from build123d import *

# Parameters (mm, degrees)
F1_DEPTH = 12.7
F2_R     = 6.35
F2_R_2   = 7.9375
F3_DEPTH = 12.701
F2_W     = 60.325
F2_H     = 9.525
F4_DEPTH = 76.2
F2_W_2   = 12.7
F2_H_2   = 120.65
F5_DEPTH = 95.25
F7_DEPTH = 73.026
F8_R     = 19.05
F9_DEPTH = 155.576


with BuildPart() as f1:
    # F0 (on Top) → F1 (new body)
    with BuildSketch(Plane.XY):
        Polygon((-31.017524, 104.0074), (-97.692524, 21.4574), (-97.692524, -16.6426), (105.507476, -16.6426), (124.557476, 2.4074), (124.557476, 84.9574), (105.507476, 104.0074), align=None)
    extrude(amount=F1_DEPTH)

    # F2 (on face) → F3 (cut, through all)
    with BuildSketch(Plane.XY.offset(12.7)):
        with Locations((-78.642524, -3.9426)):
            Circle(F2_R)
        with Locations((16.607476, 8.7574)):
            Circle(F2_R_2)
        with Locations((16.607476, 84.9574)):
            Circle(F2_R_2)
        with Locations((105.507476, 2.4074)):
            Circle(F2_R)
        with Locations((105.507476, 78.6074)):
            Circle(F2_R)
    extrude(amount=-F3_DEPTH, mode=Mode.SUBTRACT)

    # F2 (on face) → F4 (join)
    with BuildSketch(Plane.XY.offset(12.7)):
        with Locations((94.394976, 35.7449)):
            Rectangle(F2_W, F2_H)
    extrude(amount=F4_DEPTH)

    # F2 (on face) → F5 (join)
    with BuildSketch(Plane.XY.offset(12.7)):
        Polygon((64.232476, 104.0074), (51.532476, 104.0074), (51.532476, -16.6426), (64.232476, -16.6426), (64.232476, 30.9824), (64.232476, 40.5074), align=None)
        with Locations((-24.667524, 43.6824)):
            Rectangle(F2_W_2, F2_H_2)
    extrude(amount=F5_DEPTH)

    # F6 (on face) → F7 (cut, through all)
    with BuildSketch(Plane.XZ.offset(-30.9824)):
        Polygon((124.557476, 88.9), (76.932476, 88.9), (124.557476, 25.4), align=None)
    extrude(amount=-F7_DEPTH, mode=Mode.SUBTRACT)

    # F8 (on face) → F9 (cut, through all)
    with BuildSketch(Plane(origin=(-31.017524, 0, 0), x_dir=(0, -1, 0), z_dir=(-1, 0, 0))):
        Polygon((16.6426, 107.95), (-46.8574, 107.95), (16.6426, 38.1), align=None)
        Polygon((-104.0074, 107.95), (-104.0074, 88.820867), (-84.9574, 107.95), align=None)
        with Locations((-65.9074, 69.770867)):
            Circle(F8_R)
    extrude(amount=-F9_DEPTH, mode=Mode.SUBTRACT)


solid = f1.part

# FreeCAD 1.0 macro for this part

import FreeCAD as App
import Part
import Sketcher
from FreeCAD import Vector
Q = App.Units.Quantity


def add_polygon(sketch, points):
    """Adds a closed chain of lines whose ends are joined by coincident constraints."""
    first, n = sketch.GeometryCount, len(points)
    for a, b in zip(points, points[1:] + points[:1]):
        sketch.addGeometry(Part.LineSegment(App.Vector(*a, 0), App.Vector(*b, 0)), False)
    for i in range(n):
        sketch.addConstraint(Sketcher.Constraint("Coincident", first + i, 2, first + (i + 1) % n, 1))

doc = App.newDocument("Part")
body = doc.addObject("PartDesign::Body", "Body")

sketch1 = body.newObject("Sketcher::SketchObject", "Sketch")
sketch1.AttachmentSupport = (doc.getObject("XY_Plane"), [""])
sketch1.MapMode = "FlatFace"
add_polygon(sketch1, [(-31, 104), (-98, 21), (-98, -17), (106, -17), (125, 2), (125, 85), (106, 104)])
sketch1.addConstraint([
    Sketcher.Constraint("Vertical", 1),
    Sketcher.Constraint("Horizontal", 2),
    Sketcher.Constraint("Vertical", 4),
    Sketcher.Constraint("Horizontal", 6),
    Sketcher.Constraint("Perpendicular", 3, 5),
    Sketcher.Constraint("Vertical", 2, 2, 5, 2),
    Sketcher.Constraint("Equal", 3, 5),
    Sketcher.Constraint("DistanceX", 2, 1, 2, 2, Q("8 in")),
    Sketcher.Constraint("DistanceY", 1, 2, 1, 1, Q("1.5 in")),
    Sketcher.Constraint("DistanceY", 2, 2, 4, 2, Q("4 in")),
    Sketcher.Constraint("DistanceY", 4, 1, 4, 2, Q("3.25 in")),
    Sketcher.Constraint("DistanceX", 6, 2, 6, 1, Q("5.375 in")),
    Sketcher.Constraint("DistanceY", -1, 1, 0, 2, 21.4574),
    Sketcher.Constraint("DistanceX", 0, 2, -1, 1, 97.692524),
])
pad1 = body.newObject("PartDesign::Pad", "Pad")
pad1.Profile = sketch1
pad1.Length = Q("0.5 in")

sketch2 = body.newObject("Sketcher::SketchObject", "Sketch001")
sketch2.AttachmentSupport = (doc.getObject("XY_Plane"), [""])
sketch2.MapMode = "FlatFace"
sketch2.AttachmentOffset = App.Placement(Vector(0, 0, 0.5 * 25.4), App.Rotation())
sketch2.addGeometry([
    Part.Circle(Vector(-79, -4, 0), Vector(0, 0, 1), 6),
    Part.Circle(Vector(17, 9, 0), Vector(0, 0, 1), 8),
    Part.Circle(Vector(17, 85, 0), Vector(0, 0, 1), 8),
    Part.Circle(Vector(106, 2, 0), Vector(0, 0, 1), 6),
    Part.Circle(Vector(106, 79, 0), Vector(0, 0, 1), 6),
], False)
sketch2.addConstraint([
    Sketcher.Constraint("Equal", 1, 2),
    Sketcher.Constraint("Equal", 0, 3),
    Sketcher.Constraint("Equal", 3, 4),
    Sketcher.Constraint("Vertical", 1, 3, 2, 3),
    Sketcher.Constraint("Vertical", 3, 3, 4, 3),
    Sketcher.Constraint("Diameter", 0, Q("0.5 in")),
    Sketcher.Constraint("Diameter", 1, Q("0.625 in")),
    Sketcher.Constraint("DistanceY", 1, 3, 2, 3, Q("3 in")),
    Sketcher.Constraint("DistanceY", 3, 3, 4, 3, Q("3 in")),
    Sketcher.Constraint("DistanceY", 0, 3, 1, 3, Q("0.5 in")),
    Sketcher.Constraint("DistanceX", 1, 3, 3, 3, Q("3.5 in")),
    Sketcher.Constraint("DistanceX", 0, 3, 1, 3, Q("3.75 in")),
    Sketcher.Constraint("DistanceY", 3, 3, 1, 3, Q("0.25 in")),
    Sketcher.Constraint("DistanceY", 0, 3, -1, 1, 3.9426),
    Sketcher.Constraint("DistanceX", 0, 3, -1, 1, 78.642524),
])
pocket1 = body.newObject("PartDesign::Pocket", "Pocket")
pocket1.Profile = sketch2
pocket1.Type = "ThroughAll"

sketch3 = body.newObject("Sketcher::SketchObject", "Sketch002")
sketch3.AttachmentSupport = (doc.getObject("XY_Plane"), [""])
sketch3.MapMode = "FlatFace"
sketch3.AttachmentOffset = App.Placement(Vector(0, 0, 0.5 * 25.4), App.Rotation())
add_polygon(sketch3, [(64, 41), (64, 31), (125, 31), (125, 41)])
sketch3.addConstraint([
    Sketcher.Constraint("Vertical", 0),
    Sketcher.Constraint("Horizontal", 1),
    Sketcher.Constraint("Vertical", 2),
    Sketcher.Constraint("Horizontal", 3),
    Sketcher.Constraint("DistanceX", 1, 1, 1, 2, Q("2.375 in")),
    Sketcher.Constraint("DistanceY", 0, 2, 0, 1, Q("0.375 in")),
    Sketcher.Constraint("DistanceY", -1, 1, 0, 2, 30.9824),
    Sketcher.Constraint("DistanceX", -1, 1, 0, 2, 64.232476),
])
pad2 = body.newObject("PartDesign::Pad", "Pad001")
pad2.Profile = sketch3
pad2.Length = Q("3 in")

sketch4 = body.newObject("Sketcher::SketchObject", "Sketch003")
sketch4.AttachmentSupport = (doc.getObject("XY_Plane"), [""])
sketch4.MapMode = "FlatFace"
sketch4.AttachmentOffset = App.Placement(Vector(0, 0, 0.5 * 25.4), App.Rotation())
add_polygon(sketch4, [(64, 104), (52, 104), (52, -17), (64, -17)])
add_polygon(sketch4, [(-31, 104), (-31, -17), (-18, -17), (-18, 104)])
sketch4.addConstraint([
    Sketcher.Constraint("Horizontal", 0),
    Sketcher.Constraint("Vertical", 1),
    Sketcher.Constraint("Horizontal", 2),
    Sketcher.Constraint("Vertical", 3),
    Sketcher.Constraint("Vertical", 4),
    Sketcher.Constraint("Horizontal", 5),
    Sketcher.Constraint("Vertical", 6),
    Sketcher.Constraint("Horizontal", 7),
    Sketcher.Constraint("Horizontal", 2, 2, 4, 2),
    Sketcher.Constraint("Horizontal", 3, 2, 6, 2),
    Sketcher.Constraint("Equal", 2, 5),
    Sketcher.Constraint("DistanceX", 0, 2, 0, 1, Q("0.5 in")),
    Sketcher.Constraint("DistanceY", 1, 2, 1, 1, Q("4.75 in")),
    Sketcher.Constraint("DistanceX", 4, 2, 1, 2, Q("3.25 in")),
    Sketcher.Constraint("DistanceY", -1, 1, 0, 2, 104.0074),
    Sketcher.Constraint("DistanceX", -1, 1, 0, 2, 51.532476),
])
pad3 = body.newObject("PartDesign::Pad", "Pad002")
pad3.Profile = sketch4
pad3.Length = Q("3.75 in")

sketch5 = body.newObject("Sketcher::SketchObject", "Sketch004")
sketch5.AttachmentSupport = (doc.getObject("XZ_Plane"), [""])
sketch5.MapMode = "FlatFace"
sketch5.AttachmentOffset = App.Placement(Vector(0, 0, -30.9824), App.Rotation())
add_polygon(sketch5, [(125, 89), (77, 89), (125, 25)])
sketch5.addConstraint([
    Sketcher.Constraint("Horizontal", 0),
    Sketcher.Constraint("Vertical", 2),
    Sketcher.Constraint("DistanceY", 2, 1, 2, 2, Q("2.5 in")),
    Sketcher.Constraint("DistanceY", -1, 1, 1, 2, Q("1 in")),
    Sketcher.Constraint("DistanceX", 0, 2, 0, 1, Q("1.875 in")),
    Sketcher.Constraint("DistanceX", -1, 1, 0, 2, 76.932476),
])
pocket2 = body.newObject("PartDesign::Pocket", "Pocket001")
pocket2.Profile = sketch5
pocket2.Type = "ThroughAll"

sketch6 = body.newObject("Sketcher::SketchObject", "Sketch005")
sketch6.AttachmentSupport = (doc.getObject("YZ_Plane"), [""])
sketch6.MapMode = "FlatFace"
sketch6.AttachmentOffset = App.Placement(Vector(0, 0, -31.017524), App.Rotation())
add_polygon(sketch6, [(-17, 108), (47, 108), (-17, 38)])
add_polygon(sketch6, [(104, 108), (104, 89), (85, 108)])
sketch6.addGeometry(Part.Circle(Vector(66, 70, 0), Vector(0, 0, 1), 19), False)
sketch6.addConstraint([
    Sketcher.Constraint("Horizontal", 0),
    Sketcher.Constraint("Vertical", 2),
    Sketcher.Constraint("Vertical", 3),
    Sketcher.Constraint("Horizontal", 5),
    Sketcher.Constraint("Horizontal", 2, 2, 4, 2),
    Sketcher.Constraint("Diameter", 6, Q("1.5 in")),
    Sketcher.Constraint("DistanceX", 0, 1, 0, 2, Q("2.5 in")),
    Sketcher.Constraint("DistanceX", 2, 2, 4, 2, Q("4 in")),
    Sketcher.Constraint("DistanceX", 5, 1, 5, 2, Q("0.75 in")),
    Sketcher.Constraint("DistanceY", 2, 1, 2, 2, Q("2.75 in")),
    Sketcher.Constraint("DistanceY", -1, 1, 1, 2, Q("1.5 in")),
    Sketcher.Constraint("DistanceX", 6, 3, 3, 2, Q("1.5 in")),
    Sketcher.Constraint("DistanceY", 6, 3, 3, 2, Q("0.75 in")),
    Sketcher.Constraint("DistanceX", -1, 1, 6, 3, 65.9074),
    Sketcher.Constraint("Distance", 4, 26.996782),
])
pocket3 = body.newObject("PartDesign::Pocket", "Pocket002")
pocket3.Profile = sketch6
pocket3.Type = "ThroughAll"
pocket3.Reversed = True

doc.recompute()
